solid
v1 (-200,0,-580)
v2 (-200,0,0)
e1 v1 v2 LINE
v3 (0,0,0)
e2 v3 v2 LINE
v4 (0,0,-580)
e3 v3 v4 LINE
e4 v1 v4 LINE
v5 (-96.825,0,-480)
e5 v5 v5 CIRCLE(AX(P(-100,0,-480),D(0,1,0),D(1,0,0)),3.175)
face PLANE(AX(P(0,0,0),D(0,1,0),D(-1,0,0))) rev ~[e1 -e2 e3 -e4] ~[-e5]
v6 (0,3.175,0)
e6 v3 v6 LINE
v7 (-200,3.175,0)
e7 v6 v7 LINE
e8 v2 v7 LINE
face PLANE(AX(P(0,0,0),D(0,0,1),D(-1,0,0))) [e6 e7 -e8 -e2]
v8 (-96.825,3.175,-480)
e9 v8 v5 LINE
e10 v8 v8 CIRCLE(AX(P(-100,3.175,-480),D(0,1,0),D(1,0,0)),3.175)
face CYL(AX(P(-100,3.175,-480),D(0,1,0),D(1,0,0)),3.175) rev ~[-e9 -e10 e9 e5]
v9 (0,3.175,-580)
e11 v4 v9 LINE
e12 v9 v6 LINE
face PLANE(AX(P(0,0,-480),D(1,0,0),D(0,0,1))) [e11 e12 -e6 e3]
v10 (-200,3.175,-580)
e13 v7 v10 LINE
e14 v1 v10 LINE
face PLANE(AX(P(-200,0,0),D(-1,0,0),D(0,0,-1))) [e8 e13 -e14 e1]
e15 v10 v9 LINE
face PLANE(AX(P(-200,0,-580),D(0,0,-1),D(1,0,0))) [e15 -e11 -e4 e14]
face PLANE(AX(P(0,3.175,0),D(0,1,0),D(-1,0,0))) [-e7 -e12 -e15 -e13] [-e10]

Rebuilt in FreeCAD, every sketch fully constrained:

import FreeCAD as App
import Part
import Sketcher
from FreeCAD import Vector
Q = App.Units.Quantity


def add_polygon(sketch, points):
    """Adds a closed chain of lines whose ends are joined by coincident constraints."""
    first, n = sketch.GeometryCount, len(points)
    for a, b in zip(points, points[1:] + points[:1]):
        sketch.addGeometry(Part.LineSegment(App.Vector(*a, 0), App.Vector(*b, 0)), False)
    for i in range(n):
        sketch.addConstraint(Sketcher.Constraint("Coincident", first + i, 2, first + (i + 1) % n, 1))

doc = App.newDocument("Part")
body = doc.addObject("PartDesign::Body", "Body")

# Sketch on XZ plane
sketch1 = doc.addObject("Sketcher::SketchObject", "Sketch")
body.addObject(sketch1)
sketch1.AttachmentSupport = (doc.XZ_Plane, [""])
sketch1.MapMode = "FlatFace"
add_polygon(sketch1, [(-200, 0), (0, 0), (0, -580), (-200, -580)])  # lines 0-3
sketch1.addConstraint(Sketcher.Constraint("Horizontal", 0))
sketch1.addConstraint(Sketcher.Constraint("Vertical", 1))
sketch1.addConstraint(Sketcher.Constraint("Horizontal", 2))
sketch1.addConstraint(Sketcher.Constraint("Vertical", 3))
sketch1.addConstraint(Sketcher.Constraint("Coincident", 0, 2, -1, 1))
sketch1.addConstraint(Sketcher.Constraint("DistanceX", 0, 1, 0, 2, Q("200 mm")))
sketch1.addConstraint(Sketcher.Constraint("DistanceY", 1, 2, 1, 1, Q("580 mm")))
pad1 = doc.addObject("PartDesign::Pad", "Pad")
body.addObject(pad1)
pad1.Profile = sketch1
pad1.Length = 3.175
pad1.Reversed = True

# Sketch on XZ plane
sketch2 = doc.addObject("Sketcher::SketchObject", "Sketch001")
body.addObject(sketch2)
sketch2.AttachmentSupport = (doc.XZ_Plane, [""])
sketch2.MapMode = "FlatFace"
sketch2.AttachmentOffset = App.Placement(Vector(0, 0, -3.175), App.Rotation())
sketch2.addGeometry(Part.Circle(Vector(-100, -480, 0), Vector(0, 0, 1), 3.175), False)
sketch2.addConstraint(Sketcher.Constraint("Diameter", 0, Q("6.35 mm")))
sketch2.addConstraint(Sketcher.Constraint("DistanceX", 0, 3, -1, 1, Q("100 mm")))
sketch2.addConstraint(Sketcher.Constraint("DistanceY", 0, 3, -1, 1, Q("480 mm")))
pocket1 = doc.addObject("PartDesign::Pocket", "Pocket")
body.addObject(pocket1)
pocket1.Profile = sketch2
pocket1.Length = 3.175
pocket1.Reversed = True

doc.recompute()
